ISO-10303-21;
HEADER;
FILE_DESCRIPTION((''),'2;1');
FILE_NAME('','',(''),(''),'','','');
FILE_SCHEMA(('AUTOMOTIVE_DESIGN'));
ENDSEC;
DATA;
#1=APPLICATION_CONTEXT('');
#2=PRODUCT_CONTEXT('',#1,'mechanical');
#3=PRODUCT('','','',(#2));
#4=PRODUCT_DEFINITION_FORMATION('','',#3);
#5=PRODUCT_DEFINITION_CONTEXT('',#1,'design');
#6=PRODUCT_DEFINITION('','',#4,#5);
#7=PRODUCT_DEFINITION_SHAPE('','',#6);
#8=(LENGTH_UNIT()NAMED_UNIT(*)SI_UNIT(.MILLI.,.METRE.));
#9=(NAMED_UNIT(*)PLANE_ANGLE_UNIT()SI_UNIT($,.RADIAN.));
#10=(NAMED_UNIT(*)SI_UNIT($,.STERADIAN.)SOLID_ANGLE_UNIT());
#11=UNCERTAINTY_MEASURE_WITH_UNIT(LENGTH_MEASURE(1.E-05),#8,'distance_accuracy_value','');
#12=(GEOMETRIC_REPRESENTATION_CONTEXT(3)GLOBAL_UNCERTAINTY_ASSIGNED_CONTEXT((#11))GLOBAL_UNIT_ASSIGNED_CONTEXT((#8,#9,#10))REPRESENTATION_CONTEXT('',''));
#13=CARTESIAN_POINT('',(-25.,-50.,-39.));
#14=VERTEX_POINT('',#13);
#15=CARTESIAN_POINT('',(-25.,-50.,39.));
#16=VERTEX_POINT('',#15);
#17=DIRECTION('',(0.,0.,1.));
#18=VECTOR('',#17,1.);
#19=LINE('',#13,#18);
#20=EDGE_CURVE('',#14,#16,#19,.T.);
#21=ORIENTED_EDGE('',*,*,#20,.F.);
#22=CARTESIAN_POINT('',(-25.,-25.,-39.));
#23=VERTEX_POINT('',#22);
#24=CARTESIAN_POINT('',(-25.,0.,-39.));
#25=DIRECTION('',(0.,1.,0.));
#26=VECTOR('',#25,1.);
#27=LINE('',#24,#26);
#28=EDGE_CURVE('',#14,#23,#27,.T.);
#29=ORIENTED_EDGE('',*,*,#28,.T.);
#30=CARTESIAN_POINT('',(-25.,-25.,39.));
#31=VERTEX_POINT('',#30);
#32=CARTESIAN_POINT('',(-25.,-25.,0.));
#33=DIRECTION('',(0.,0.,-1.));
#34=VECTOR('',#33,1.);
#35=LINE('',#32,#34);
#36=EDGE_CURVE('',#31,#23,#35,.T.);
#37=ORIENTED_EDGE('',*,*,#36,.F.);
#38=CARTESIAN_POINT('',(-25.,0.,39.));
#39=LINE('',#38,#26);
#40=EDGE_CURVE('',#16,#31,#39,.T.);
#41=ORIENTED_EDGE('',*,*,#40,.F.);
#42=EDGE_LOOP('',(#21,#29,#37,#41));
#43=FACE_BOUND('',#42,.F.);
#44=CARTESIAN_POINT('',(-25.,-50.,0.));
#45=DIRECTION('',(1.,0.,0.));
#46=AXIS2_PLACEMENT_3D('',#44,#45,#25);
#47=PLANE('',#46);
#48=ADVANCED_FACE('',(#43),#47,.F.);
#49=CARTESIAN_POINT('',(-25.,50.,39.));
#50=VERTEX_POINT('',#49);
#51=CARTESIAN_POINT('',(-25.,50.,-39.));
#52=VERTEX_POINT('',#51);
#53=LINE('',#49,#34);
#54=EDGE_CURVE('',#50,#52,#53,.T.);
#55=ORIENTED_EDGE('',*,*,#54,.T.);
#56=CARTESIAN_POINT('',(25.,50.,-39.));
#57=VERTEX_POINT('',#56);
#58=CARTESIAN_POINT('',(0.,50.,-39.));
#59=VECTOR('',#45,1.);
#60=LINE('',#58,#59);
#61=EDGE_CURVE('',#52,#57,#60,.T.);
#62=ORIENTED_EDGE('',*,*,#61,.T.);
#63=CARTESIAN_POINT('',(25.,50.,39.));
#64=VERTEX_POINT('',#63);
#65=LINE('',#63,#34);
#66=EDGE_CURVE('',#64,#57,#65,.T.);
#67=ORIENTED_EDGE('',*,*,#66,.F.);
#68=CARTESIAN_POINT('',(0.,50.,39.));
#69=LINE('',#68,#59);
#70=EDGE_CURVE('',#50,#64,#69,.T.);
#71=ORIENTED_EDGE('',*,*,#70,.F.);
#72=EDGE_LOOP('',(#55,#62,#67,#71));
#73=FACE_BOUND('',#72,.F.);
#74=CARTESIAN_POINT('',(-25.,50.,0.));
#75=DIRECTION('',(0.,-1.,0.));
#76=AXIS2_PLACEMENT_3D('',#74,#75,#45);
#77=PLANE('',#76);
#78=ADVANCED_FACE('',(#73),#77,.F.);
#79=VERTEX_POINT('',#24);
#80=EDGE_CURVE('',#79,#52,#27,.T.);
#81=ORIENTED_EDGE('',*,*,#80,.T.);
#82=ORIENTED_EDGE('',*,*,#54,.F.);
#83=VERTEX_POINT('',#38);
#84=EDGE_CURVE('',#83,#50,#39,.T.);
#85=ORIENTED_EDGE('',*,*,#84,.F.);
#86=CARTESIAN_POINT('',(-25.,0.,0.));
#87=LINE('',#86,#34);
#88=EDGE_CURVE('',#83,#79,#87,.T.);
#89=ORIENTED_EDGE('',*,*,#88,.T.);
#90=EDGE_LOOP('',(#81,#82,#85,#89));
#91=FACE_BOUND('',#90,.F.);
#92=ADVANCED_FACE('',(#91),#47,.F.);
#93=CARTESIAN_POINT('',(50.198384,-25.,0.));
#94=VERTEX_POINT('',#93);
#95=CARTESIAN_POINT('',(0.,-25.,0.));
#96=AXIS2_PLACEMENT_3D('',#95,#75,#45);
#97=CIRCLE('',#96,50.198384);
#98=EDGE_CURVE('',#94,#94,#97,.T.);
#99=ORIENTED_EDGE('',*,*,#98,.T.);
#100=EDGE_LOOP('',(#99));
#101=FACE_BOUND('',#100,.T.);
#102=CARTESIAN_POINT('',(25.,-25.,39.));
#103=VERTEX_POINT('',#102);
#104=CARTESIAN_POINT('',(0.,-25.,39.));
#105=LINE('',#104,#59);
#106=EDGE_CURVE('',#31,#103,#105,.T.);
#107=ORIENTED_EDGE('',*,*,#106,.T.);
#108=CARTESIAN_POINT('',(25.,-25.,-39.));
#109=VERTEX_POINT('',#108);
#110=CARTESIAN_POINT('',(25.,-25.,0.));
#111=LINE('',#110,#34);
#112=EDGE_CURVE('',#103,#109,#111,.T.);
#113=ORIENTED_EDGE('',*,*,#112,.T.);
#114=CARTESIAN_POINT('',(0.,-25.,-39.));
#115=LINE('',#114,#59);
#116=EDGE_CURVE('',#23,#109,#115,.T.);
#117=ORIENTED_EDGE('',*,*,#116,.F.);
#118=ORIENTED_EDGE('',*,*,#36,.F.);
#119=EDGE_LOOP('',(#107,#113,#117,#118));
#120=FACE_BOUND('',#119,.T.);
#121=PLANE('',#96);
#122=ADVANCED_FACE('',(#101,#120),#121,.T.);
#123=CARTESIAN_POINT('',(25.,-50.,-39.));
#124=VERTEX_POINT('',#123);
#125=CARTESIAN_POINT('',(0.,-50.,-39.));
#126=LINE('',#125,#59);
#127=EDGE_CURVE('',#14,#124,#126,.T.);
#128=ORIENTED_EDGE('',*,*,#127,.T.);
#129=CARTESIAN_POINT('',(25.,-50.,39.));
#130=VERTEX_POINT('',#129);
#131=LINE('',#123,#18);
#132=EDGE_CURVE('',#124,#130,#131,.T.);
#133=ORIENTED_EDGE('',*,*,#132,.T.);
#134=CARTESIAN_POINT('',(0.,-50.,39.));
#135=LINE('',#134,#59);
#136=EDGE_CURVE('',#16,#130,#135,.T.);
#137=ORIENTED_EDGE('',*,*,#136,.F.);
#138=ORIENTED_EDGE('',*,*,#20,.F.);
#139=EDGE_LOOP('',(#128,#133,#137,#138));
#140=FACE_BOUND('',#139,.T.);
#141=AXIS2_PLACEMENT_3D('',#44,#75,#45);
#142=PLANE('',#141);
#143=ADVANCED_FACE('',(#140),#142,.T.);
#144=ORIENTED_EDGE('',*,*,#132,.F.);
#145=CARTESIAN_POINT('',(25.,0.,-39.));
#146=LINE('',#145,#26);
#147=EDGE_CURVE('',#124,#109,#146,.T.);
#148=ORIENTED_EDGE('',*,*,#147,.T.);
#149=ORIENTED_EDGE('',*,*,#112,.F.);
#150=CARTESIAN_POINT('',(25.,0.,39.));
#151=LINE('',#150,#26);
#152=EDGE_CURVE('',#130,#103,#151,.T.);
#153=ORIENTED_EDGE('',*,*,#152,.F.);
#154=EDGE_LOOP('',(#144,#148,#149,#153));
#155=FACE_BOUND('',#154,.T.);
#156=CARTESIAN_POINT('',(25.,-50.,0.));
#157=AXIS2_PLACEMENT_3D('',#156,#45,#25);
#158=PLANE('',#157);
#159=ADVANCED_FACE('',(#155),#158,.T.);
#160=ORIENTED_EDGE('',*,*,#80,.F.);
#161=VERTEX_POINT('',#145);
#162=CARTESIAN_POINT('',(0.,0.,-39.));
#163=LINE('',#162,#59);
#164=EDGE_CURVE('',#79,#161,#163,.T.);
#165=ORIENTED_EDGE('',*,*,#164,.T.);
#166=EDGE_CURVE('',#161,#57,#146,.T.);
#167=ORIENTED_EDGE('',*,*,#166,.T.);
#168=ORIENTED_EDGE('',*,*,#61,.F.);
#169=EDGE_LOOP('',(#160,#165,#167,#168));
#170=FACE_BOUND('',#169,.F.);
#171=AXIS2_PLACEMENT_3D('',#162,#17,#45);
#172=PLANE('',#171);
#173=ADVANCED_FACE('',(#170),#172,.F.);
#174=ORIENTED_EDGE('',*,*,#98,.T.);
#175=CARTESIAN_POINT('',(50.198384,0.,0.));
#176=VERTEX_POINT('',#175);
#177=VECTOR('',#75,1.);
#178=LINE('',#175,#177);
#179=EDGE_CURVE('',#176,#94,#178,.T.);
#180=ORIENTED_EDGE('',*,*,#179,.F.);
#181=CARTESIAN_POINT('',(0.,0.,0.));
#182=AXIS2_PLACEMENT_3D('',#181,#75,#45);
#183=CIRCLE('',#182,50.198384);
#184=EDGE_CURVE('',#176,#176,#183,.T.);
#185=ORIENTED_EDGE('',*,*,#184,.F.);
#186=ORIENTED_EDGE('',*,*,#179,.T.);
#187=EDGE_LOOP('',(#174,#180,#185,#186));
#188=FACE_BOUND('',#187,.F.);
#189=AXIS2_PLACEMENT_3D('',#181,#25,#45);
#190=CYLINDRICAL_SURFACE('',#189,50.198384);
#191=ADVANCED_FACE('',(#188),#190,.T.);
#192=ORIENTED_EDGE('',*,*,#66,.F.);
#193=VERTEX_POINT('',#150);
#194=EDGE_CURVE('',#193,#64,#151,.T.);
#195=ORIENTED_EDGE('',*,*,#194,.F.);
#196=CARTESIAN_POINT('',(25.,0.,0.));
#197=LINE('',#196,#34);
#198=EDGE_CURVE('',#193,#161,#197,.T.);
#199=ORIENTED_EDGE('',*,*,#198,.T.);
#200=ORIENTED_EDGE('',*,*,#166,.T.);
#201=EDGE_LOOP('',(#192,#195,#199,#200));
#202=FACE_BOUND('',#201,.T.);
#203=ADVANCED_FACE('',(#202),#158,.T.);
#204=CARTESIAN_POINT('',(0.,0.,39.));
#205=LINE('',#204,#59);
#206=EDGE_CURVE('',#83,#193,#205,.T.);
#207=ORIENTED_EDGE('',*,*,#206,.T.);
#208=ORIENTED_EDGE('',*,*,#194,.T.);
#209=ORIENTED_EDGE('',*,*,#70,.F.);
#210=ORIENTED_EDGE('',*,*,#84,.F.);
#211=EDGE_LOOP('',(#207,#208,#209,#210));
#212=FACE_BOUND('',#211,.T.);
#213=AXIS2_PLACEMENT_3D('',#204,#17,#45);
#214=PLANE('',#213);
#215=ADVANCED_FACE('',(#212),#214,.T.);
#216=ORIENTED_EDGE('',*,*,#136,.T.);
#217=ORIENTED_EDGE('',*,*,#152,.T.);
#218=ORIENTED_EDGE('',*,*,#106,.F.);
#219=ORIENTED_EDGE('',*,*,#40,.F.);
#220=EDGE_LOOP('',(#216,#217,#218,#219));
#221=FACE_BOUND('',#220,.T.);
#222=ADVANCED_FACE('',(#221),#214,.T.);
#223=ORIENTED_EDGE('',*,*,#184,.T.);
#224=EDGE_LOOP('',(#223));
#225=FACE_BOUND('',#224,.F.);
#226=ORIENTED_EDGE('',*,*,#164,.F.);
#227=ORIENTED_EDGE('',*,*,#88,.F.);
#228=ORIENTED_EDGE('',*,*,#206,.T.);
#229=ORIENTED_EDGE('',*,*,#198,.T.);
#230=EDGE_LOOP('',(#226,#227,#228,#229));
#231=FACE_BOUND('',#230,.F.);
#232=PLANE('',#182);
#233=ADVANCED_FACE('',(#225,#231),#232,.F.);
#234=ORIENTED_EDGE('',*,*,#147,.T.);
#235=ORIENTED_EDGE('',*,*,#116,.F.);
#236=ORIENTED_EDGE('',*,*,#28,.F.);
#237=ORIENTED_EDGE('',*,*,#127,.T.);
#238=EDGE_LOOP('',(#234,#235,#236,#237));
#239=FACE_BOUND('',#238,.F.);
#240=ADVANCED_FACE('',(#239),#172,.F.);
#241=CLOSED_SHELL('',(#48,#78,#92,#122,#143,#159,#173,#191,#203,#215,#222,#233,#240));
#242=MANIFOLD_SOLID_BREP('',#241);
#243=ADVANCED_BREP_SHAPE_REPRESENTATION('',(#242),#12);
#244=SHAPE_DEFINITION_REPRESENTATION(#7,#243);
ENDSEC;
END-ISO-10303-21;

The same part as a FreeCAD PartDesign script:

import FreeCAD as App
import Part
import Sketcher
Q = App.Units.Quantity


def add_polygon(sketch, points):
    """Adds a closed chain of lines whose ends are joined by coincident constraints."""
    first, n = sketch.GeometryCount, len(points)
    for a, b in zip(points, points[1:] + points[:1]):
        sketch.addGeometry(Part.LineSegment(App.Vector(*a, 0), App.Vector(*b, 0)), False)
    for i in range(n):
        sketch.addConstraint(Sketcher.Constraint("Coincident", first + i, 2, first + (i + 1) % n, 1))

doc = App.newDocument("Part")
body = doc.addObject("PartDesign::Body", "Body")

sketch1 = body.newObject("Sketcher::SketchObject", "Sketch")
sketch1.AttachmentSupport = (doc.getObject("XY_Plane"), [""])
sketch1.MapMode = "FlatFace"
add_polygon(sketch1, [(-25, 50), (-25, -50), (25, -50), (25, 50)])
sketch1.addConstraint(Sketcher.Constraint("Vertical", 0))
sketch1.addConstraint(Sketcher.Constraint("Horizontal", 1))
sketch1.addConstraint(Sketcher.Constraint("Vertical", 2))
sketch1.addConstraint(Sketcher.Constraint("Horizontal", 3))
sketch1.addConstraint(Sketcher.Constraint("Symmetric", 0, 2, 2, 2, -1, 1))
sketch1.addConstraint(Sketcher.Constraint("DistanceX", 1, 1, 1, 2, Q("50 mm")))
sketch1.addConstraint(Sketcher.Constraint("DistanceY", 0, 2, 0, 1, Q("100 mm")))
pad1 = body.newObject("PartDesign::Pad", "Pad")
pad1.Profile = sketch1
pad1.Length = 78
pad1.Midplane = True

sketch2 = body.newObject("Sketcher::SketchObject", "Sketch001")
sketch2.AttachmentSupport = (doc.getObject("XZ_Plane"), [""])
sketch2.MapMode = "FlatFace"
sketch2.addGeometry(Part.Circle(App.Vector(0, 0, 0), App.Vector(0, 0, 1), 50), False)
sketch2.addConstraint(Sketcher.Constraint("Coincident", 0, 3, -1, 1))
sketch2.addConstraint(Sketcher.Constraint("Diameter", 0, Q("100.396768 mm")))
pad2 = body.newObject("PartDesign::Pad", "Pad001")
pad2.Profile = sketch2
pad2.Length = 25

doc.recompute()
